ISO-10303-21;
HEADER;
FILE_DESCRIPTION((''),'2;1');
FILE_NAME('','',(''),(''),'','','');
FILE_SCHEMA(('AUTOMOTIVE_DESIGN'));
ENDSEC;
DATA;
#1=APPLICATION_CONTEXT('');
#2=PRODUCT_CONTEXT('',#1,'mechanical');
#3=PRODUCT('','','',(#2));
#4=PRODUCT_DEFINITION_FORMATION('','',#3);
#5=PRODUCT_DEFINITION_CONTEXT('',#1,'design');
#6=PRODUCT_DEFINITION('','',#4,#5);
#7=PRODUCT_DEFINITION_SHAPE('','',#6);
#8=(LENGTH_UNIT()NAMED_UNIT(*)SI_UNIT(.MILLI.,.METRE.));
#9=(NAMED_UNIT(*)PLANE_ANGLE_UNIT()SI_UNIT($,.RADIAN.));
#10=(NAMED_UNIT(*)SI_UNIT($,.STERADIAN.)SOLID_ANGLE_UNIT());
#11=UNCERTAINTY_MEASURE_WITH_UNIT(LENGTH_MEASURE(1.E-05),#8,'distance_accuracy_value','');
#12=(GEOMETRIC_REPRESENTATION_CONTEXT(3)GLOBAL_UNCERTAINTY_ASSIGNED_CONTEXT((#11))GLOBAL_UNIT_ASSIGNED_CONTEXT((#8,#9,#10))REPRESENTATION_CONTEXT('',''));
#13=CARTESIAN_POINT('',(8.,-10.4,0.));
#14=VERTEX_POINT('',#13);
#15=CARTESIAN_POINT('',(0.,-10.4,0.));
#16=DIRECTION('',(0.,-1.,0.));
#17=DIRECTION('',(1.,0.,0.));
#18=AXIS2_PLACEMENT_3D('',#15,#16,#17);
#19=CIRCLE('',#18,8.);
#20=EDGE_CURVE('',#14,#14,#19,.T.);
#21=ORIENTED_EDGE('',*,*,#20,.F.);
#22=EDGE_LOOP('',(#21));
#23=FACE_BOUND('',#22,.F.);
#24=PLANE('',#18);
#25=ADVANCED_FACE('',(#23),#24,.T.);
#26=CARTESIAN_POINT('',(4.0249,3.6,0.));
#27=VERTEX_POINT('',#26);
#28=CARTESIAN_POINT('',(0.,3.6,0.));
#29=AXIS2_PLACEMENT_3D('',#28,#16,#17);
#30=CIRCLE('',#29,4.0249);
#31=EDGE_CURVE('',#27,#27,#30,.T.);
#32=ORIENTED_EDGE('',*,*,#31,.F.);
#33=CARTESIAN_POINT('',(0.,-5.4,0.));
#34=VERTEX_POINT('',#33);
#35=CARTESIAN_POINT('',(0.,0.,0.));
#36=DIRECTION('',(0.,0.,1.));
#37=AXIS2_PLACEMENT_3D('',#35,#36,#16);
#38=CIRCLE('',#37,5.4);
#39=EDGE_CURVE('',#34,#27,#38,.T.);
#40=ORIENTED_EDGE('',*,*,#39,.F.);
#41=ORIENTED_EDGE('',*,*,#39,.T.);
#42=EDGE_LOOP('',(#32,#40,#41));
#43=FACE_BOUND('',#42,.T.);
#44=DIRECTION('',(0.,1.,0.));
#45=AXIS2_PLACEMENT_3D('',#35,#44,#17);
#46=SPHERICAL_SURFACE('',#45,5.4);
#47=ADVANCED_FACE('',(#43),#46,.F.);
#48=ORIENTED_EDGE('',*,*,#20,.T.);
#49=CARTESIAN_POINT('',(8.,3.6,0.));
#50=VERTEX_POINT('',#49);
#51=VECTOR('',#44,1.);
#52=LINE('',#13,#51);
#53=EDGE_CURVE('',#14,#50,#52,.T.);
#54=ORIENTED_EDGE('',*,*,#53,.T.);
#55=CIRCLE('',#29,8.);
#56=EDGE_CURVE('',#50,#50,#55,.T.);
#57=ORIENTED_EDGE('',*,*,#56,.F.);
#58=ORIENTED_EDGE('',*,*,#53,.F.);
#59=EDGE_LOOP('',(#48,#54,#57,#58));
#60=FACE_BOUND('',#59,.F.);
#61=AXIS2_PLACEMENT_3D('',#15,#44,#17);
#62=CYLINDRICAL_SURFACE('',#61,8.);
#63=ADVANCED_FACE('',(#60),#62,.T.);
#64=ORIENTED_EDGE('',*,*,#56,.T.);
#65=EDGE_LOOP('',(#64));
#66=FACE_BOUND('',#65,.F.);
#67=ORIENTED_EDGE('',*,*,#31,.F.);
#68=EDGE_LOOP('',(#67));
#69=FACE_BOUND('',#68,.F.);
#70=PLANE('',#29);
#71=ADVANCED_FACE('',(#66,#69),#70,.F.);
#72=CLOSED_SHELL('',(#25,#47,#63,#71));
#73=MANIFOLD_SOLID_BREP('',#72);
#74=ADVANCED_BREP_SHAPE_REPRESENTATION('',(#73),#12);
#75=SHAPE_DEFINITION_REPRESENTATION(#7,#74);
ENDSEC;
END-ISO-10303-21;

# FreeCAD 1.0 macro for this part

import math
import FreeCAD as App
import Part
import Sketcher

V = App.Vector

doc = App.newDocument("Part")
body = doc.addObject("PartDesign::Body", "Body")

sketch1 = doc.addObject("Sketcher::SketchObject", "Sketch")
body.addObject(sketch1)
sketch1.AttachmentSupport = (doc.XY_Plane, [""])
sketch1.MapMode = "FlatFace"
sketch1.addGeometry([
    Part.ArcOfCircle(Part.Circle(V(0, 0, 0), V(0, 0, 1), 5.4), math.radians(-90), math.radians(42)),
    Part.LineSegment(V(0, -5.4, 0), V(0, -10.4, 0)),
    Part.LineSegment(V(0, -10.4, 0), V(8, -10.4, 0)),
    Part.LineSegment(V(8, -10.4, 0), V(8, 3.6, 0)),
    Part.LineSegment(V(8, 3.6, 0), V(4, 3.6, 0)),
], False)
sketch1.addConstraint([
    Sketcher.Constraint("Coincident", 0, 1, 1, 1),
    Sketcher.Constraint("Coincident", 1, 2, 2, 1),
    Sketcher.Constraint("Coincident", 2, 2, 3, 1),
    Sketcher.Constraint("Coincident", 3, 2, 4, 1),
    Sketcher.Constraint("Coincident", 4, 2, 0, 2),
    Sketcher.Constraint("Vertical", 1),
    Sketcher.Constraint("Horizontal", 2),
    Sketcher.Constraint("Vertical", 3),
    Sketcher.Constraint("Horizontal", 4),
    Sketcher.Constraint("Coincident", 0, 3, -1, 1),
    Sketcher.Constraint("PointOnObject", 0, 1, -2),
    Sketcher.Constraint("Radius", 0, 5.4),
    Sketcher.Constraint("DistanceX", 2, 1, 2, 2, 8.0),
    Sketcher.Constraint("DistanceY", 1, 2, 1, 1, 5.0),
    Sketcher.Constraint("DistanceY", 3, 1, 3, 2, 14.0),
])
revolution = doc.addObject("PartDesign::Revolution", "Revolution")
body.addObject(revolution)
revolution.Profile = sketch1
revolution.ReferenceAxis = (sketch1, ["V_Axis"])
revolution.Angle = 360

doc.recompute()
